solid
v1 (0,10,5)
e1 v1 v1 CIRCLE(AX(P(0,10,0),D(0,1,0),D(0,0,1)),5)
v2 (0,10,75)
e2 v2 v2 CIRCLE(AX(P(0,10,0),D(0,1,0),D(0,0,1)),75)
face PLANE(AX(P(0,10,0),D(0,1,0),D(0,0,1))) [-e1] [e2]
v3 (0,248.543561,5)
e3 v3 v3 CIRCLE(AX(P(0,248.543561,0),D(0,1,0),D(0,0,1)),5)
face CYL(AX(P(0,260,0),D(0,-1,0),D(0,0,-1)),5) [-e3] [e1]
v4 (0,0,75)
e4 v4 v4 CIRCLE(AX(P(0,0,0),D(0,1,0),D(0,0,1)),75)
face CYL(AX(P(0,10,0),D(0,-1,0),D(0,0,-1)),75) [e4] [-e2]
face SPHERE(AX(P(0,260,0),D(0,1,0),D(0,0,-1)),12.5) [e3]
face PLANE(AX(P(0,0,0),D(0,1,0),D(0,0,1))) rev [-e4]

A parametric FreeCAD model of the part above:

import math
import FreeCAD as App
import Part
import Sketcher
from FreeCAD import Vector
Q = App.Units.Quantity

doc = App.newDocument("Part")
body = doc.addObject("PartDesign::Body", "Body")

sketch1 = body.newObject("Sketcher::SketchObject", "Sketch")
sketch1.AttachmentSupport = (doc.getObject("XZ_Plane"), [""])
sketch1.MapMode = "FlatFace"
sketch1.addGeometry(Part.Circle(Vector(0, 0, 0), Vector(0, 0, 1), 75), False)
sketch1.addConstraint([
    Sketcher.Constraint("Coincident", 0, 3, -1, 1),
    Sketcher.Constraint("Diameter", 0, Q("150 mm")),
])
pad1 = body.newObject("PartDesign::Pad", "Pad")
pad1.Profile = sketch1
pad1.Length = 10
pad1.Reversed = True

sketch2 = body.newObject("Sketcher::SketchObject", "Sketch001")
sketch2.AttachmentSupport = (doc.getObject("XZ_Plane"), [""])
sketch2.MapMode = "FlatFace"
sketch2.AttachmentOffset = App.Placement(Vector(0, 0, -10), App.Rotation())
sketch2.addGeometry(Part.Circle(Vector(0, 0, 0), Vector(0, 0, 1), 5), False)
sketch2.addConstraint([
    Sketcher.Constraint("Coincident", 0, 3, -1, 1),
    Sketcher.Constraint("Diameter", 0, Q("10 mm")),
])
pad2 = body.newObject("PartDesign::Pad", "Pad001")
pad2.Profile = sketch2
pad2.Length = 250
pad2.Reversed = True

sketch3 = body.newObject("Sketcher::SketchObject", "Sketch002")
sketch3.AttachmentSupport = (doc.getObject("YZ_Plane"), [""])
sketch3.MapMode = "FlatFace"
sketch3.addGeometry([
    Part.LineSegment(Vector(272, 0, 0), Vector(248, 0, 0)),
    Part.ArcOfCircle(Part.Circle(Vector(260, 0, 0), Vector(0, 0, 1), 12), math.radians(180), math.radians(360)),
], False)
sketch3.addConstraint([
    Sketcher.Constraint("Coincident", 0, 1, 1, 2),
    Sketcher.Constraint("Coincident", 1, 1, 0, 2),
    Sketcher.Constraint("Horizontal", 0),
    Sketcher.Constraint("PointOnObject", 1, 3, -1),
    Sketcher.Constraint("PointOnObject", 0, 1, -1),
    Sketcher.Constraint("Radius", 1, Q("12.5 mm")),
    Sketcher.Constraint("DistanceX", -1, 1, 1, 3, Q("260 mm")),
])
revolution = body.newObject("PartDesign::Revolution", "Revolution")
revolution.Profile = sketch3
revolution.ReferenceAxis = (sketch3, ["H_Axis"])
revolution.Angle = 360

doc.recompute()
